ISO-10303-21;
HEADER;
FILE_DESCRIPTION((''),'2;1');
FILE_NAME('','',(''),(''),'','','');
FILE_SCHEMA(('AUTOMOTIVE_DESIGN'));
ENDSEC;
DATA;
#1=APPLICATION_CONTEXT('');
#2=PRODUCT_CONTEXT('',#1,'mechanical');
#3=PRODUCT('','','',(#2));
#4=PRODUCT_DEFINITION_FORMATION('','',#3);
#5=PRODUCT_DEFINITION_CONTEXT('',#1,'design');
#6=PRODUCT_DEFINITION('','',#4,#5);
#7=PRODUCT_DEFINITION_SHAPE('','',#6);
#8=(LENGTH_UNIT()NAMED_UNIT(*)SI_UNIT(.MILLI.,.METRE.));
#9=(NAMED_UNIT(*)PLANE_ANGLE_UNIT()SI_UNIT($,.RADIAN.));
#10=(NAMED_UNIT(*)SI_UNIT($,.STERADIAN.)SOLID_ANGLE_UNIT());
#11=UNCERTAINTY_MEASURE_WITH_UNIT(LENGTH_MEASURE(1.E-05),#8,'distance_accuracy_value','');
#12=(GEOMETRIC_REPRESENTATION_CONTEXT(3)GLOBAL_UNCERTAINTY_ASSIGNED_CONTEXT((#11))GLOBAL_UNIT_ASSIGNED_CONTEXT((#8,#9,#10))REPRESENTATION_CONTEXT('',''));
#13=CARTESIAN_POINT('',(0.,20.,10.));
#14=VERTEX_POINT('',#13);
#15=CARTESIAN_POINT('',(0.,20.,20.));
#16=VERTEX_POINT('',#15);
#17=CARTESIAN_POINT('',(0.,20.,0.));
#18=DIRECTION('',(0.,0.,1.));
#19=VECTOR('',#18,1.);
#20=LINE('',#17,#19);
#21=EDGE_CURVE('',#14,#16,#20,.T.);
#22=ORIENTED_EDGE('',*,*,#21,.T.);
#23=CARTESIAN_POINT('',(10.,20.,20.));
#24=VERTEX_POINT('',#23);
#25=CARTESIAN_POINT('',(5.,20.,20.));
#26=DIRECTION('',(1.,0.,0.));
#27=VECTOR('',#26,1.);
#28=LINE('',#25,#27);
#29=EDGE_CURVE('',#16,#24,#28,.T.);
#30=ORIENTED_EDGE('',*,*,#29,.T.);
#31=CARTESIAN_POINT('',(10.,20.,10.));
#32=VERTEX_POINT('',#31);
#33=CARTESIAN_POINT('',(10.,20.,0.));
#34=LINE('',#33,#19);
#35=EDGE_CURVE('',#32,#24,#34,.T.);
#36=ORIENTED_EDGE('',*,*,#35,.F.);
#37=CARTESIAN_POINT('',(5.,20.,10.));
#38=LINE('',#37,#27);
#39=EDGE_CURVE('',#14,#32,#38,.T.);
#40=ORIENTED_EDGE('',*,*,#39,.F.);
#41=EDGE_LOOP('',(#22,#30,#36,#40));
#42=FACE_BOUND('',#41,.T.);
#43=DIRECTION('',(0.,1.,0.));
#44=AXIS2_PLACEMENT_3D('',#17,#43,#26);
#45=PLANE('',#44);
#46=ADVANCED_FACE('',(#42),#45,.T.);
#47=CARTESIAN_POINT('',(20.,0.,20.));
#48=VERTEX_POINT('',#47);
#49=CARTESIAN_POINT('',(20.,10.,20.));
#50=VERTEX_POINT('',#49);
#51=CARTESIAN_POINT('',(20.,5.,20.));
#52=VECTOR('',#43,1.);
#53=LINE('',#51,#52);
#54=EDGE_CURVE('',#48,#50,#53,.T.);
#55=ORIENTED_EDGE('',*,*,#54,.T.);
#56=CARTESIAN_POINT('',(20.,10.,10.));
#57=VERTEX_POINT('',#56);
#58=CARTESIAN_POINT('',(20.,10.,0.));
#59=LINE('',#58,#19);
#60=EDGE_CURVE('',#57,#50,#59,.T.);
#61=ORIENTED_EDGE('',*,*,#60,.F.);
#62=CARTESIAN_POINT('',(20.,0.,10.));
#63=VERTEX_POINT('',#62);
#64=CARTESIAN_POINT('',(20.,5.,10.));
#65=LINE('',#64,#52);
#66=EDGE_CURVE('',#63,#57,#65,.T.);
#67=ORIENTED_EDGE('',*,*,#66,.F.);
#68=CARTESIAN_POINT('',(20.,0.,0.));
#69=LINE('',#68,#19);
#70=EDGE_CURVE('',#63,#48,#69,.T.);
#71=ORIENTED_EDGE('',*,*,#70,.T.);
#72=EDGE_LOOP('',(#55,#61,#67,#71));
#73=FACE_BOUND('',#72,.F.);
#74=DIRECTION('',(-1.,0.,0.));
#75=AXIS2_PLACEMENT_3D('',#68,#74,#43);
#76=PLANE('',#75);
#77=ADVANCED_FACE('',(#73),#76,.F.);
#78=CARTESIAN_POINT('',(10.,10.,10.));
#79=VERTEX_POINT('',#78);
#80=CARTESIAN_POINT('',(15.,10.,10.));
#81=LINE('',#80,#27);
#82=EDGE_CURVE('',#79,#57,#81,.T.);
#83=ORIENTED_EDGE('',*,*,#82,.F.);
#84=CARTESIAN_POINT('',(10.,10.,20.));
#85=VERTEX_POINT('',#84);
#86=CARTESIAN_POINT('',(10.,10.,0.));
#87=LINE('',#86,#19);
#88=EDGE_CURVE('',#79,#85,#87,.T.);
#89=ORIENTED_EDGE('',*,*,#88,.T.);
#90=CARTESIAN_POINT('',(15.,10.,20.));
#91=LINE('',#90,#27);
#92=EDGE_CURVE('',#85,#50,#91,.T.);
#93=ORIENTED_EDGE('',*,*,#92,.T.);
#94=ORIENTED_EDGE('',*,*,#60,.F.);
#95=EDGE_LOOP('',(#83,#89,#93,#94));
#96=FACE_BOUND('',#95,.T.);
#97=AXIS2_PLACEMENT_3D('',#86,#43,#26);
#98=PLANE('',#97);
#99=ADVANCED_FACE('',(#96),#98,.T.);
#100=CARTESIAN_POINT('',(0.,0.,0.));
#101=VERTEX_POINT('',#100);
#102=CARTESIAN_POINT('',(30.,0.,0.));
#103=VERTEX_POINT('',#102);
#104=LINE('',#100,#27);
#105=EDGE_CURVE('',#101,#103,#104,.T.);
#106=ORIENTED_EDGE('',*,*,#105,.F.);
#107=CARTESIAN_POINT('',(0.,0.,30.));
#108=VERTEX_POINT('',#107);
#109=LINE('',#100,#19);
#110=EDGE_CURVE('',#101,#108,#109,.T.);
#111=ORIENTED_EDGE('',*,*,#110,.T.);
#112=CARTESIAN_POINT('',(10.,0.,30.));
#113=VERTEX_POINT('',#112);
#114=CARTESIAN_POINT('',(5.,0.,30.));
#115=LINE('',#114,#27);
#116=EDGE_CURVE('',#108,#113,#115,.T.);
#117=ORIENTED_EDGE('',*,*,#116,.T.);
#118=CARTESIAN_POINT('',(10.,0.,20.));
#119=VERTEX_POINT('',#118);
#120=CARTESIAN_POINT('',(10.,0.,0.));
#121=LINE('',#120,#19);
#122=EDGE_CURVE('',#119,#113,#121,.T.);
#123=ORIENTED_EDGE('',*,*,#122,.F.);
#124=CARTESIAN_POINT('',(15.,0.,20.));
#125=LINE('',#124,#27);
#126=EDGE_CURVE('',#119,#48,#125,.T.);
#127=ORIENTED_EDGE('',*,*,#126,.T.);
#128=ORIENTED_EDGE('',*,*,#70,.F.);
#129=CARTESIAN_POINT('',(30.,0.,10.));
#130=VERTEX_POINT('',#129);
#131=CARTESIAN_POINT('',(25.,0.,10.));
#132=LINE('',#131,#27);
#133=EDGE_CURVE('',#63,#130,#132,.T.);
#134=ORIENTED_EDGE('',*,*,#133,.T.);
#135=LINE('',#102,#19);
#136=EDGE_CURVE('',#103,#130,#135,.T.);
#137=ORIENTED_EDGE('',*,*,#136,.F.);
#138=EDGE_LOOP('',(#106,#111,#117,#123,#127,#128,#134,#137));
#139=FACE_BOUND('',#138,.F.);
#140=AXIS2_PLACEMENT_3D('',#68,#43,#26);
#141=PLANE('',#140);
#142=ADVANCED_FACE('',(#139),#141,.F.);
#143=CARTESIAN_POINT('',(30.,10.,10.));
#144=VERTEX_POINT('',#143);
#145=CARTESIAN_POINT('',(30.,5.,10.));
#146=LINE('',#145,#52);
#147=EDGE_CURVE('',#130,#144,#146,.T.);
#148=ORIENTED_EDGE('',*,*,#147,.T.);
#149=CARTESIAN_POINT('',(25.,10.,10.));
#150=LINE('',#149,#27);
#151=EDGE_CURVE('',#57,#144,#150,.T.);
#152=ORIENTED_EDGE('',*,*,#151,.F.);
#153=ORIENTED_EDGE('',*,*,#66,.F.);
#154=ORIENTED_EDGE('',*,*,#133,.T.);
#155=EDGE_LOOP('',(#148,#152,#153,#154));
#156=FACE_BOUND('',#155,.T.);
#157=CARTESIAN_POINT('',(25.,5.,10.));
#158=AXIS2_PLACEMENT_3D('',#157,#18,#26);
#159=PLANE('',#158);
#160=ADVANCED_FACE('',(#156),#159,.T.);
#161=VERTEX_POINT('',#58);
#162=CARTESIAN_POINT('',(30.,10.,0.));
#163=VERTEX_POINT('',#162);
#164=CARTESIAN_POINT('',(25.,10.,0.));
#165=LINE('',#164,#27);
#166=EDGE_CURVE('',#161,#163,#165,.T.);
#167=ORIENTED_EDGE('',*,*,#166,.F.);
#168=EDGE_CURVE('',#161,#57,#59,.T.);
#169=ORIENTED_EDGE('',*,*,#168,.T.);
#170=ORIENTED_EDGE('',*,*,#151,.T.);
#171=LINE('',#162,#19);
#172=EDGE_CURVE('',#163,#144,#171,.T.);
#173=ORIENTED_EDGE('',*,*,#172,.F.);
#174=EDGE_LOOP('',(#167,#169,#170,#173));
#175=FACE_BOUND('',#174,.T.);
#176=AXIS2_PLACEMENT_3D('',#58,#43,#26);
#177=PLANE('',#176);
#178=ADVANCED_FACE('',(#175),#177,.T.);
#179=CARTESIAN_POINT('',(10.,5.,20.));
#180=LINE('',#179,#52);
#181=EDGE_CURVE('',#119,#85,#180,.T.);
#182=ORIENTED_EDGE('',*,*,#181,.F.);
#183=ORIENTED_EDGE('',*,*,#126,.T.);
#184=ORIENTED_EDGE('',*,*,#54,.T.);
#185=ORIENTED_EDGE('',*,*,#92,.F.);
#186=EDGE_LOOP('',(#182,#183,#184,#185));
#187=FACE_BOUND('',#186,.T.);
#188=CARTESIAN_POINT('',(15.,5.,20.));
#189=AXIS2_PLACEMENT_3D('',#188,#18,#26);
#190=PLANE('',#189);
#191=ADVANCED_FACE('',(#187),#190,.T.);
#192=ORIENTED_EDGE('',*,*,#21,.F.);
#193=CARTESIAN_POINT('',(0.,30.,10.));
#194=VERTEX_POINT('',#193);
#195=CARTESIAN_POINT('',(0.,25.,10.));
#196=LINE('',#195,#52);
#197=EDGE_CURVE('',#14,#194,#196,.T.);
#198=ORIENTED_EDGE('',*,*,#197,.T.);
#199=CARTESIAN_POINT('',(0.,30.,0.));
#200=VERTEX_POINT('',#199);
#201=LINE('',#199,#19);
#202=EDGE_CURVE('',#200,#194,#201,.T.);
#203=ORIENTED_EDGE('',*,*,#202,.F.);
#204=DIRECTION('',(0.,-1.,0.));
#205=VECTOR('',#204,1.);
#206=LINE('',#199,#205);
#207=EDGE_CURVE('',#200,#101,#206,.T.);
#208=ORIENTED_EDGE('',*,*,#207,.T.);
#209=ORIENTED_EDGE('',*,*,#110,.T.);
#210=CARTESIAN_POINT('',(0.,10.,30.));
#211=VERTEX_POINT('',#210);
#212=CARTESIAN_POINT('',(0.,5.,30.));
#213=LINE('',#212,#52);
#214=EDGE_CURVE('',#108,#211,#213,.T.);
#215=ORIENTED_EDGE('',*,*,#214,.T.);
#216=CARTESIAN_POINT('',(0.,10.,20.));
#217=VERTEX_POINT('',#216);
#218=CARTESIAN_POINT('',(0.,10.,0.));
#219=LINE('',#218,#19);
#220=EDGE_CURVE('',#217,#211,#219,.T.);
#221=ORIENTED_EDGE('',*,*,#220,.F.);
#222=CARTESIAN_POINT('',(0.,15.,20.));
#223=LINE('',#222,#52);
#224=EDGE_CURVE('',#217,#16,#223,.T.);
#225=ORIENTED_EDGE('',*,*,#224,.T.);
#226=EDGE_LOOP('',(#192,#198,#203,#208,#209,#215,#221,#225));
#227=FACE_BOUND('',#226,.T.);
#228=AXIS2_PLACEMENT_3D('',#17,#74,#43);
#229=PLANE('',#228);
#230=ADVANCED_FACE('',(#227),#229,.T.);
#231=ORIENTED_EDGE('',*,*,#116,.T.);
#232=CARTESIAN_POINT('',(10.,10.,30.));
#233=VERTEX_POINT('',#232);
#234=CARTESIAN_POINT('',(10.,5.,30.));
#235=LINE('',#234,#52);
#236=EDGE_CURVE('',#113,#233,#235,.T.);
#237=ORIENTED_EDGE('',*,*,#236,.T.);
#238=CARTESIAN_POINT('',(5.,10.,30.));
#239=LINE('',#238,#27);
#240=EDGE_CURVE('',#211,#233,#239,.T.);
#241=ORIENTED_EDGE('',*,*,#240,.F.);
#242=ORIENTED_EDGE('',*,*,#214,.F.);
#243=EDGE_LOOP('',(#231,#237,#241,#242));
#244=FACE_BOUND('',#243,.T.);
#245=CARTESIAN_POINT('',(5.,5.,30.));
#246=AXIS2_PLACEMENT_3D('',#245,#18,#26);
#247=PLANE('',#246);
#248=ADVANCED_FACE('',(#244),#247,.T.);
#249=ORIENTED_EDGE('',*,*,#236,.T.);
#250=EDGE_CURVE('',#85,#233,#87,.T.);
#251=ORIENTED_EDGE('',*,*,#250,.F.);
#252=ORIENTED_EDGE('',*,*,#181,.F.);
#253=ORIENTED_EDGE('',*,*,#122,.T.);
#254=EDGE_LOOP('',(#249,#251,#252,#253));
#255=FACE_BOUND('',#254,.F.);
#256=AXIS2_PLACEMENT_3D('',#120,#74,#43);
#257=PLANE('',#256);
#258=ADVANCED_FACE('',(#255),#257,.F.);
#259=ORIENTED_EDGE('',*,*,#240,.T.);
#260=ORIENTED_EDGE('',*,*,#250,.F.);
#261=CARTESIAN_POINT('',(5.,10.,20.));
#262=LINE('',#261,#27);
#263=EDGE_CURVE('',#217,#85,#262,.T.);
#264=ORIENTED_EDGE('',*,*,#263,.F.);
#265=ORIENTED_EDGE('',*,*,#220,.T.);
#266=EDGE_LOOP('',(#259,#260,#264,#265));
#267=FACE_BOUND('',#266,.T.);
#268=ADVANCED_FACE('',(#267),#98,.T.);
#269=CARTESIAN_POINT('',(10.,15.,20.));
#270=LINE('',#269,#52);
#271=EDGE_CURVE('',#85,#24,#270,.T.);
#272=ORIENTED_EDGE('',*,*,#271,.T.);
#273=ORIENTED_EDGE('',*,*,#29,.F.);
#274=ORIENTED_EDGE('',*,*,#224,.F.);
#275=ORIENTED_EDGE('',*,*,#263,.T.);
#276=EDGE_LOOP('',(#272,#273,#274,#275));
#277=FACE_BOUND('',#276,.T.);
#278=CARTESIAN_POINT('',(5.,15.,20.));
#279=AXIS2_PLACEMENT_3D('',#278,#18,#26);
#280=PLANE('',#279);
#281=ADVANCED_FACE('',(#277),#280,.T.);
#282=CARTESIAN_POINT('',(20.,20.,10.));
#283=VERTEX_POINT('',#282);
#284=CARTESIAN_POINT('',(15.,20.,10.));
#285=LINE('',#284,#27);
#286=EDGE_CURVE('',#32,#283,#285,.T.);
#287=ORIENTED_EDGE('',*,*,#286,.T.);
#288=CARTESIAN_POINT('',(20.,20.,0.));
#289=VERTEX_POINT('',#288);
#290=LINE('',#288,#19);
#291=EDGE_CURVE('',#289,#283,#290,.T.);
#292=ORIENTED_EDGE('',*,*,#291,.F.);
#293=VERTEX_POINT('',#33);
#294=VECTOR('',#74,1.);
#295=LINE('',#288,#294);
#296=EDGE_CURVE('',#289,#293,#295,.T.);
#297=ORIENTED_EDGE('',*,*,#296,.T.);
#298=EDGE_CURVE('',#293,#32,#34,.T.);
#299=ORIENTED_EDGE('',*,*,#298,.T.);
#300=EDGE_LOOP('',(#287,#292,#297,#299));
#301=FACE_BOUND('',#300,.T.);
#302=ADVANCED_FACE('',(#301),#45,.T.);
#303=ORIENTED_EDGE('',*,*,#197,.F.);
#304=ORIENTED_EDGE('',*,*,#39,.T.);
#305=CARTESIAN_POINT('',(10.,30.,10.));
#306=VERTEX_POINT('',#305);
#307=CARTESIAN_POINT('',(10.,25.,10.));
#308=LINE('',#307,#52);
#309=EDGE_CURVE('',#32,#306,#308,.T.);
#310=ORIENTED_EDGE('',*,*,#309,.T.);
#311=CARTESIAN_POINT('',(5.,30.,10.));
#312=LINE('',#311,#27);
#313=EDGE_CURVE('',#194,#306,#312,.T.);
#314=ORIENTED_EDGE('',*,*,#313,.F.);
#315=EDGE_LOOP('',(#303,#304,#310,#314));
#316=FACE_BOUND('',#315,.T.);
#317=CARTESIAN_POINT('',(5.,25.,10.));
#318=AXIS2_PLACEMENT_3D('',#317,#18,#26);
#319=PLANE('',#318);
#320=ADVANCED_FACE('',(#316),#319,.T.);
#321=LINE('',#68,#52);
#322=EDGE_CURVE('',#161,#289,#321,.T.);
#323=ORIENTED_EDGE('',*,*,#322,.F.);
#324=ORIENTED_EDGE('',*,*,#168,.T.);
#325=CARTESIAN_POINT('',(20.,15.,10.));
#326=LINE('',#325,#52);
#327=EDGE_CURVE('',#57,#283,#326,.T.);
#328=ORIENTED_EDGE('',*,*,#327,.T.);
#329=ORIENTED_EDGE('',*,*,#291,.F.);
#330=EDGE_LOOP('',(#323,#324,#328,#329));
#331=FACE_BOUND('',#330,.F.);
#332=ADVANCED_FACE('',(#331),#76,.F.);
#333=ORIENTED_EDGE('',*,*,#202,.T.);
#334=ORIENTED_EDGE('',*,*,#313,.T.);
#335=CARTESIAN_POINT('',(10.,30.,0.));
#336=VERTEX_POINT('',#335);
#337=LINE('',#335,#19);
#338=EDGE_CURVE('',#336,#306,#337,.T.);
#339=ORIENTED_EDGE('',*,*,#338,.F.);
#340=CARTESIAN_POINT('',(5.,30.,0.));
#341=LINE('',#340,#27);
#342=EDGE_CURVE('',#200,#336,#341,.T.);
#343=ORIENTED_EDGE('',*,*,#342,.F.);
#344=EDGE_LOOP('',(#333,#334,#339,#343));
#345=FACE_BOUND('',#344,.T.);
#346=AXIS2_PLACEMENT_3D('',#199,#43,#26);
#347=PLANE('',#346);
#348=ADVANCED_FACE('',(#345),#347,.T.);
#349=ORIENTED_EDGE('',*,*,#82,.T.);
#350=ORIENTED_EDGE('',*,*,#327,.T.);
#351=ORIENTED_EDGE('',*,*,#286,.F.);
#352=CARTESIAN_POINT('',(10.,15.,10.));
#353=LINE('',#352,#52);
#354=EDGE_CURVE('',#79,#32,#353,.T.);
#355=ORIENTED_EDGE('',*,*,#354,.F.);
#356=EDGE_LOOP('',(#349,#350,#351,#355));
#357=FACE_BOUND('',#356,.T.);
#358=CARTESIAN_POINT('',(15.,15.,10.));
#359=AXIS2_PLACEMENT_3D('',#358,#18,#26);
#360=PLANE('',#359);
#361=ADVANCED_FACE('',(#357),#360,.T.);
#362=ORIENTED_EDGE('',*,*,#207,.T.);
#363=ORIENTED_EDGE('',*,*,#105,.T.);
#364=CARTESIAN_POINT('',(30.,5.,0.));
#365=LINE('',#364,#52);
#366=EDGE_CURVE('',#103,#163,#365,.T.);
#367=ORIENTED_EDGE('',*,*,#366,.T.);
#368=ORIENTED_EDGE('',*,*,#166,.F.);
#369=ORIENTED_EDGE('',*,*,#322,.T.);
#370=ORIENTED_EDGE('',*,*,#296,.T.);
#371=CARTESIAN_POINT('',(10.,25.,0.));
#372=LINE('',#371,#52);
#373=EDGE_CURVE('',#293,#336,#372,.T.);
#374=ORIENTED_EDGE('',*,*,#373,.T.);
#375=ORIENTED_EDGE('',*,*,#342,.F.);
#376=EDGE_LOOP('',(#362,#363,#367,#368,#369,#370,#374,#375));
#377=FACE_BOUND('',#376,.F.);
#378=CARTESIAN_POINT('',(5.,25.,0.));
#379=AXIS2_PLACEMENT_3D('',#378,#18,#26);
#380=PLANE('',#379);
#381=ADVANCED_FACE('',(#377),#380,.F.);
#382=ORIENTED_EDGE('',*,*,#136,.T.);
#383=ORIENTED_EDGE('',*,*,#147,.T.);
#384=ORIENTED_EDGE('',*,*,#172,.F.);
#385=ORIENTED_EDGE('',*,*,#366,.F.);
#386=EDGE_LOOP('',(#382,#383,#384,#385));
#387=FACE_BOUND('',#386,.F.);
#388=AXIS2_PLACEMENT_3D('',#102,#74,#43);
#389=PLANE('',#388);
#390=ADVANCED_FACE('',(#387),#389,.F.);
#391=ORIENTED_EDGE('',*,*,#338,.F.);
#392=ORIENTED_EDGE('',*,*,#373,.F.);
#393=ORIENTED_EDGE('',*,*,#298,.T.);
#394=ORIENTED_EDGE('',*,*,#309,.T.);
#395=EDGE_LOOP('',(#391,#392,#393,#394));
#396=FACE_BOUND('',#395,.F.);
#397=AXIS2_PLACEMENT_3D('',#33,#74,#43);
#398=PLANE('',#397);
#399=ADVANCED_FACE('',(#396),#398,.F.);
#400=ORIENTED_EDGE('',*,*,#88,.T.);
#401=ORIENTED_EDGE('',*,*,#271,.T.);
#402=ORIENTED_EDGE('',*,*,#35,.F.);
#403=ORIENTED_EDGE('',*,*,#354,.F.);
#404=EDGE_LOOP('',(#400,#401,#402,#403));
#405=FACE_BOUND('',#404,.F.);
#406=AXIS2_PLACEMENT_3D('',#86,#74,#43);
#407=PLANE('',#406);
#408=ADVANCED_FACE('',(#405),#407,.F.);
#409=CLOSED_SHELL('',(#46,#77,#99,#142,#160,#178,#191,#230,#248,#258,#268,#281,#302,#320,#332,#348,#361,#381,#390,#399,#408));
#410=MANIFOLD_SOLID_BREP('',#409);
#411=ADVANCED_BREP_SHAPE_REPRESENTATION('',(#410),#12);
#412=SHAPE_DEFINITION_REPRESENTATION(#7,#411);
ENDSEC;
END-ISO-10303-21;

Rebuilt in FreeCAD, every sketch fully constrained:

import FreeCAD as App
import Part
import Sketcher

V = App.Vector


def add_polygon(sketch, points):
    """Adds a closed chain of lines whose ends are joined by coincident constraints."""
    first, n = sketch.GeometryCount, len(points)
    for a, b in zip(points, points[1:] + points[:1]):
        sketch.addGeometry(Part.LineSegment(App.Vector(*a, 0), App.Vector(*b, 0)), False)
    for i in range(n):
        sketch.addConstraint(Sketcher.Constraint("Coincident", first + i, 2, first + (i + 1) % n, 1))

doc = App.newDocument("Part")
body = doc.addObject("PartDesign::Body", "Body")

# Sketch on XY plane
sketch1 = doc.addObject("Sketcher::SketchObject", "Sketch")
body.addObject(sketch1)
sketch1.AttachmentSupport = (doc.XY_Plane, [""])
sketch1.MapMode = "FlatFace"
add_polygon(sketch1, [(0, 10), (0, 0), (10, 0), (10, 10)])  # lines 0-3
sketch1.addConstraint(Sketcher.Constraint("Vertical", 0))
sketch1.addConstraint(Sketcher.Constraint("Horizontal", 1))
sketch1.addConstraint(Sketcher.Constraint("Vertical", 2))
sketch1.addConstraint(Sketcher.Constraint("Horizontal", 3))
sketch1.addConstraint(Sketcher.Constraint("Coincident", 0, 2, -1, 1))
sketch1.addConstraint(Sketcher.Constraint("Equal", 3, 0))
sketch1.addConstraint(Sketcher.Constraint("DistanceX", 1, 1, 1, 2, 10.0))
pad1 = doc.addObject("PartDesign::Pad", "Pad")
body.addObject(pad1)
pad1.Profile = sketch1
pad1.Length = 30
body2 = doc.addObject("PartDesign::Body", "Body001")

# Sketch on XY plane
sketch2 = doc.addObject("Sketcher::SketchObject", "Sketch001")
body2.addObject(sketch2)
sketch2.AttachmentSupport = (doc.getObject("XY_Plane001"), [""])
sketch2.MapMode = "FlatFace"
add_polygon(sketch2, [(10, 10), (10, 0), (20, 0), (20, 10)])  # lines 0-3
sketch2.addConstraint(Sketcher.Constraint("Vertical", 0))
sketch2.addConstraint(Sketcher.Constraint("Horizontal", 1))
sketch2.addConstraint(Sketcher.Constraint("Vertical", 2))
sketch2.addConstraint(Sketcher.Constraint("Horizontal", 3))
sketch2.addConstraint(Sketcher.Constraint("PointOnObject", 0, 2, -1))
sketch2.addConstraint(Sketcher.Constraint("Equal", 3, 0))
sketch2.addConstraint(Sketcher.Constraint("DistanceX", 1, 1, 1, 2, 10.0))
sketch2.addConstraint(Sketcher.Constraint("DistanceX", -1, 1, 0, 2, 10.0))
pad2 = doc.addObject("PartDesign::Pad", "Pad001")
body2.addObject(pad2)
pad2.Profile = sketch2
pad2.Length = 20
body3 = doc.addObject("PartDesign::Body", "Body002")

# Sketch on XY plane
sketch3 = doc.addObject("Sketcher::SketchObject", "Sketch002")
body3.addObject(sketch3)
sketch3.AttachmentSupport = (doc.getObject("XY_Plane002"), [""])
sketch3.MapMode = "FlatFace"
add_polygon(sketch3, [(0, 20), (0, 10), (10, 10), (10, 20)])  # lines 0-3
sketch3.addConstraint(Sketcher.Constraint("Vertical", 0))
sketch3.addConstraint(Sketcher.Constraint("Horizontal", 1))
sketch3.addConstraint(Sketcher.Constraint("Vertical", 2))
sketch3.addConstraint(Sketcher.Constraint("Horizontal", 3))
sketch3.addConstraint(Sketcher.Constraint("PointOnObject", 0, 2, -2))
sketch3.addConstraint(Sketcher.Constraint("Equal", 3, 0))
sketch3.addConstraint(Sketcher.Constraint("DistanceX", 1, 1, 1, 2, 10.0))
sketch3.addConstraint(Sketcher.Constraint("DistanceY", -1, 1, 0, 2, 10.0))
pad3 = doc.addObject("PartDesign::Pad", "Pad002")
body3.addObject(pad3)
pad3.Profile = sketch3
pad3.Length = 20
body4 = doc.addObject("PartDesign::Body", "Body003")

# Sketch on XY plane
sketch4 = doc.addObject("Sketcher::SketchObject", "Sketch003")
body4.addObject(sketch4)
sketch4.AttachmentSupport = (doc.getObject("XY_Plane003"), [""])
sketch4.MapMode = "FlatFace"
add_polygon(sketch4, [(20, 10), (20, 0), (30, 0), (30, 10)])  # lines 0-3
sketch4.addConstraint(Sketcher.Constraint("Vertical", 0))
sketch4.addConstraint(Sketcher.Constraint("Horizontal", 1))
sketch4.addConstraint(Sketcher.Constraint("Vertical", 2))
sketch4.addConstraint(Sketcher.Constraint("Horizontal", 3))
sketch4.addConstraint(Sketcher.Constraint("PointOnObject", 0, 2, -1))
sketch4.addConstraint(Sketcher.Constraint("Equal", 3, 0))
sketch4.addConstraint(Sketcher.Constraint("DistanceX", 1, 1, 1, 2, 10.0))
sketch4.addConstraint(Sketcher.Constraint("DistanceX", -1, 1, 0, 2, 20.0))
pad4 = doc.addObject("PartDesign::Pad", "Pad003")
body4.addObject(pad4)
pad4.Profile = sketch4
pad4.Length = 10
body5 = doc.addObject("PartDesign::Body", "Body004")

# Sketch on XY plane
sketch5 = doc.addObject("Sketcher::SketchObject", "Sketch004")
body5.addObject(sketch5)
sketch5.AttachmentSupport = (doc.getObject("XY_Plane004"), [""])
sketch5.MapMode = "FlatFace"
add_polygon(sketch5, [(0, 30), (0, 20), (10, 20), (10, 30)])  # lines 0-3
sketch5.addConstraint(Sketcher.Constraint("Vertical", 0))
sketch5.addConstraint(Sketcher.Constraint("Horizontal", 1))
sketch5.addConstraint(Sketcher.Constraint("Vertical", 2))
sketch5.addConstraint(Sketcher.Constraint("Horizontal", 3))
sketch5.addConstraint(Sketcher.Constraint("PointOnObject", 0, 2, -2))
sketch5.addConstraint(Sketcher.Constraint("Equal", 3, 0))
sketch5.addConstraint(Sketcher.Constraint("DistanceX", 1, 1, 1, 2, 10.0))
sketch5.addConstraint(Sketcher.Constraint("DistanceY", -1, 1, 0, 2, 20.0))
pad5 = doc.addObject("PartDesign::Pad", "Pad004")
body5.addObject(pad5)
pad5.Profile = sketch5
pad5.Length = 10
body6 = doc.addObject("PartDesign::Body", "Body005")
body6.AllowCompound = True

# Sketch on XY plane
sketch6 = doc.addObject("Sketcher::SketchObject", "Sketch005")
body6.addObject(sketch6)
sketch6.AttachmentSupport = (doc.getObject("XY_Plane005"), [""])
sketch6.MapMode = "FlatFace"
add_polygon(sketch6, [(10, 20), (10, 10), (20, 10), (20, 20)])  # lines 0-3
sketch6.addConstraint(Sketcher.Constraint("Vertical", 0))
sketch6.addConstraint(Sketcher.Constraint("Horizontal", 1))
sketch6.addConstraint(Sketcher.Constraint("Vertical", 2))
sketch6.addConstraint(Sketcher.Constraint("Horizontal", 3))
sketch6.addConstraint(Sketcher.Constraint("Equal", 3, 0))
sketch6.addConstraint(Sketcher.Constraint("DistanceX", 1, 1, 1, 2, 10.0))
sketch6.addConstraint(Sketcher.Constraint("DistanceX", -1, 1, 0, 2, 10.0))
sketch6.addConstraint(Sketcher.Constraint("DistanceY", -1, 1, 0, 2, 10.0))
pad6 = doc.addObject("PartDesign::Pad", "Pad005")
body6.addObject(pad6)
pad6.Profile = sketch6
pad6.Length = 10
doc.recompute()

boolean = doc.addObject("PartDesign::Boolean", "Boolean")
body6.addObject(boolean)
boolean.Type = "Fuse"
boolean.addObjects([body])
doc.recompute()

boolean2 = doc.addObject("PartDesign::Boolean", "Boolean001")
body6.addObject(boolean2)
boolean2.Type = "Fuse"
boolean2.addObjects([body2])
doc.recompute()

boolean3 = doc.addObject("PartDesign::Boolean", "Boolean002")
body6.addObject(boolean3)
boolean3.Type = "Fuse"
boolean3.addObjects([body3])
doc.recompute()

boolean4 = doc.addObject("PartDesign::Boolean", "Boolean003")
body6.addObject(boolean4)
boolean4.Type = "Fuse"
boolean4.addObjects([body4])
doc.recompute()

boolean5 = doc.addObject("PartDesign::Boolean", "Boolean004")
body6.addObject(boolean5)
boolean5.Type = "Fuse"
boolean5.addObjects([body5])

doc.recompute()
